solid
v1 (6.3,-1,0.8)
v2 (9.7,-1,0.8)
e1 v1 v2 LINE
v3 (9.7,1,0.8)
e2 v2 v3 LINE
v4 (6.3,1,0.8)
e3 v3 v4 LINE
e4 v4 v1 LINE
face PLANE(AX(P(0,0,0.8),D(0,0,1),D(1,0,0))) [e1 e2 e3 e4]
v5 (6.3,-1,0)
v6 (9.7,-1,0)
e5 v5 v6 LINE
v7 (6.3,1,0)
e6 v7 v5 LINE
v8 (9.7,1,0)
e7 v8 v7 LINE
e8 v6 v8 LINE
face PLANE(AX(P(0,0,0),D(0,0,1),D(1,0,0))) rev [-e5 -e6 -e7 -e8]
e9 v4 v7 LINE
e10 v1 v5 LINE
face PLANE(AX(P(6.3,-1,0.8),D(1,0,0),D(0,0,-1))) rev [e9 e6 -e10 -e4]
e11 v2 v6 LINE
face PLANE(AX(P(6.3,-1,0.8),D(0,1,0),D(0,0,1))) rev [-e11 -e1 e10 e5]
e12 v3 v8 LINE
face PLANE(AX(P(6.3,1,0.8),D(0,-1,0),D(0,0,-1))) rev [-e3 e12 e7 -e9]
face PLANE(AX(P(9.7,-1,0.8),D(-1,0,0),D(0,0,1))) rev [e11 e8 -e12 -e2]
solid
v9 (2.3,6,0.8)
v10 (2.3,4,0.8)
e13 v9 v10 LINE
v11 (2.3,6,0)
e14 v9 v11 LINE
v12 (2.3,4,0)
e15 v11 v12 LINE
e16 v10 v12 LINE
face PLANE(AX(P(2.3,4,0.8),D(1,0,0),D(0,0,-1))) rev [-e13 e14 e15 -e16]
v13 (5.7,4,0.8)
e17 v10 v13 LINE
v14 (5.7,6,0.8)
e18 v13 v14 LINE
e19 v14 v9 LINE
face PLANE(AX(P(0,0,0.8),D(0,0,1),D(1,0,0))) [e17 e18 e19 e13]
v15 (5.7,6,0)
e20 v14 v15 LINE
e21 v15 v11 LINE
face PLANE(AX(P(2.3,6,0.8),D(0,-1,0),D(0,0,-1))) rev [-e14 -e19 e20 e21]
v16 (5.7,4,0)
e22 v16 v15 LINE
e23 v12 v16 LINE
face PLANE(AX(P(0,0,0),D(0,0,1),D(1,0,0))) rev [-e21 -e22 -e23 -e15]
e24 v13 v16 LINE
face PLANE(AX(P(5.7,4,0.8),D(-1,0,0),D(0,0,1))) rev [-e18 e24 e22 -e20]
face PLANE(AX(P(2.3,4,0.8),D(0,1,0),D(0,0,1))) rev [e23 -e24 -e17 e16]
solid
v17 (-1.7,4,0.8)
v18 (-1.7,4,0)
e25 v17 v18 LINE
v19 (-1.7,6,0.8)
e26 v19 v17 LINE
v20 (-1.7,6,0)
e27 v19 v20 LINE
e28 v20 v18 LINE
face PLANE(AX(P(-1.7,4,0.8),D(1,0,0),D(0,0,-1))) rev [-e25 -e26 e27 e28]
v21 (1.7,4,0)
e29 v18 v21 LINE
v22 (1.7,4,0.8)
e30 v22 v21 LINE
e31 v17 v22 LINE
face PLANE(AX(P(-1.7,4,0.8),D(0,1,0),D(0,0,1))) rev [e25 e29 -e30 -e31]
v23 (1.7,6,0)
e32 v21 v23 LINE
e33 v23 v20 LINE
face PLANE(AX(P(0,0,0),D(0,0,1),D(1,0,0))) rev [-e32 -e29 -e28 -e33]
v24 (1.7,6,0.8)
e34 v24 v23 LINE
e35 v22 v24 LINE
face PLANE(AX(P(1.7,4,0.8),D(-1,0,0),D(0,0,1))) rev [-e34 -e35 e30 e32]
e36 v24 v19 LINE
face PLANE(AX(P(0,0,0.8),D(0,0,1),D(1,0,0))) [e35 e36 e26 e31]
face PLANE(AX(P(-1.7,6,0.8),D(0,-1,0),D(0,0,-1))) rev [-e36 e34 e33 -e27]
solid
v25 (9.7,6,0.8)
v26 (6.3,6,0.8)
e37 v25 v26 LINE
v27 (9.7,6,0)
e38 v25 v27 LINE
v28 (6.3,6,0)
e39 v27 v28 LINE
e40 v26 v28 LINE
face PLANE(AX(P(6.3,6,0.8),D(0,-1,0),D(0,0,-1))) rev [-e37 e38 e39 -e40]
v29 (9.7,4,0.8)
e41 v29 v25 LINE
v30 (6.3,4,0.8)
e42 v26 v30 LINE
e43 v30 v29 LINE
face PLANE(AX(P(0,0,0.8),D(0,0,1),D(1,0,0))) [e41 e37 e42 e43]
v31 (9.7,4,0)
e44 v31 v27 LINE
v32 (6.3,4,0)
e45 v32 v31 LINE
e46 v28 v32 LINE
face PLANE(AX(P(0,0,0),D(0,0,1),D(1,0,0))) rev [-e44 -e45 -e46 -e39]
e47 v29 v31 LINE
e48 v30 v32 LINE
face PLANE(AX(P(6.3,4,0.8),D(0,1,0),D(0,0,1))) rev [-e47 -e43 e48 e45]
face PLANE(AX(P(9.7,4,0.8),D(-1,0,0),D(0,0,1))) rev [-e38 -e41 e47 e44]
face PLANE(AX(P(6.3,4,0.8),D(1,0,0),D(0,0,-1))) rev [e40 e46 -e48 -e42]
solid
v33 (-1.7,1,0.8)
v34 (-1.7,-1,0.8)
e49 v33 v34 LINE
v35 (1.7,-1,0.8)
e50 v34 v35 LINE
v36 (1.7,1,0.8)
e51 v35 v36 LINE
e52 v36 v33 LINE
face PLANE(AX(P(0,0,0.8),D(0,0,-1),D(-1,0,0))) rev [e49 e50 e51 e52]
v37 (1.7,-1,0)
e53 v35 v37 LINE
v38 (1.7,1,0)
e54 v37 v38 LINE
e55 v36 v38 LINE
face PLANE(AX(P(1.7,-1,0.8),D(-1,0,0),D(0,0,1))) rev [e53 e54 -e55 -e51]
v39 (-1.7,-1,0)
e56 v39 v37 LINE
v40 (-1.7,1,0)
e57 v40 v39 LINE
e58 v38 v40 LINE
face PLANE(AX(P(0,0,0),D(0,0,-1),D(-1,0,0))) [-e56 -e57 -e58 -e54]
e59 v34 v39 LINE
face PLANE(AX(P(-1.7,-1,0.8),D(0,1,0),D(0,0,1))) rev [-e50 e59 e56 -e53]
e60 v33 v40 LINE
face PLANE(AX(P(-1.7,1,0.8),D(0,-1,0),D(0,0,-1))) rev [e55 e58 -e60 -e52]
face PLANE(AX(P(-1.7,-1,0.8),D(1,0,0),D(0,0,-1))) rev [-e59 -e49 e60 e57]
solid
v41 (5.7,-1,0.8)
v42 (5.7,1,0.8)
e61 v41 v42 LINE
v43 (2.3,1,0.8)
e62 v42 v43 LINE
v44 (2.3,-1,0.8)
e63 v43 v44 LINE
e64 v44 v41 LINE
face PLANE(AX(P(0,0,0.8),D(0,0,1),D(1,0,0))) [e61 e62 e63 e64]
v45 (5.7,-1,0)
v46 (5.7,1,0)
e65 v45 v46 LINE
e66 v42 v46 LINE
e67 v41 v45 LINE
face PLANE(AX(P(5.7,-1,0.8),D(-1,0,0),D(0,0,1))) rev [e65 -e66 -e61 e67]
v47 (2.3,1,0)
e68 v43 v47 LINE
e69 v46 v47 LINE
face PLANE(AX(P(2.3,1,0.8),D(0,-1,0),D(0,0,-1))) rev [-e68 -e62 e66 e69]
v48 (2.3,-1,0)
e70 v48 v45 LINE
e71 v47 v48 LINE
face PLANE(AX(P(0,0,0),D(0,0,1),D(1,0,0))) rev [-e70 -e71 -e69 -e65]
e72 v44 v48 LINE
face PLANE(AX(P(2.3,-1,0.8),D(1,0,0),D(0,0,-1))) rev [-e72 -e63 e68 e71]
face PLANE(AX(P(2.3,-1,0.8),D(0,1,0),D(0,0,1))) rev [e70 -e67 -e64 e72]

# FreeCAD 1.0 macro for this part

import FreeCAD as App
import Part
import Sketcher
from FreeCAD import Vector
Q = App.Units.Quantity

doc = App.newDocument("Part")
body = doc.addObject("PartDesign::Body", "Body")

# Sketch on XY plane
sketch1 = doc.addObject("Sketcher::SketchObject", "Sketch")
body.addObject(sketch1)
sketch1.AttachmentSupport = (doc.XY_Plane, [""])
sketch1.MapMode = "FlatFace"
sketch1.addGeometry([
    Part.LineSegment(Vector(2.3, 1, 0), Vector(2.3, -1, 0)),
    Part.LineSegment(Vector(2.3, -1, 0), Vector(5.7, -1, 0)),
    Part.LineSegment(Vector(5.7, -1, 0), Vector(5.7, 1, 0)),
    Part.LineSegment(Vector(5.7, 1, 0), Vector(2.3, 1, 0)),
], False)
sketch1.addConstraint([
    Sketcher.Constraint("Coincident", 0, 2, 1, 1),
    Sketcher.Constraint("Coincident", 1, 2, 2, 1),
    Sketcher.Constraint("Coincident", 2, 2, 3, 1),
    Sketcher.Constraint("Coincident", 3, 2, 0, 1),
    Sketcher.Constraint("Vertical", 0),
    Sketcher.Constraint("Horizontal", 1),
    Sketcher.Constraint("Vertical", 2),
    Sketcher.Constraint("Horizontal", 3),
    Sketcher.Constraint("DistanceY", 0, 2, 0, 1, Q("2 mm")),
    Sketcher.Constraint("DistanceX", 1, 1, 1, 2, Q("3.4 mm")),
    Sketcher.Constraint("DistanceY", 0, 2, -1, 1, Q("1 mm")),
    Sketcher.Constraint("DistanceX", -1, 1, 0, 2, Q("2.3 mm")),
])
pad1 = doc.addObject("PartDesign::Pad", "Pad")
body.addObject(pad1)
pad1.Profile = sketch1
pad1.Length = 0.8
body2 = doc.addObject("PartDesign::Body", "Body001")

# Sketch on XY plane
sketch2 = doc.addObject("Sketcher::SketchObject", "Sketch001")
body2.addObject(sketch2)
sketch2.AttachmentSupport = (doc.getObject("XY_Plane001"), [""])
sketch2.MapMode = "FlatFace"
sketch2.addGeometry([
    Part.LineSegment(Vector(-1.7, 1, 0), Vector(-1.7, -1, 0)),
    Part.LineSegment(Vector(-1.7, -1, 0), Vector(1.7, -1, 0)),
    Part.LineSegment(Vector(1.7, -1, 0), Vector(1.7, 1, 0)),
    Part.LineSegment(Vector(1.7, 1, 0), Vector(-1.7, 1, 0)),
], False)
sketch2.addConstraint([
    Sketcher.Constraint("Coincident", 0, 2, 1, 1),
    Sketcher.Constraint("Coincident", 1, 2, 2, 1),
    Sketcher.Constraint("Coincident", 2, 2, 3, 1),
    Sketcher.Constraint("Coincident", 3, 2, 0, 1),
    Sketcher.Constraint("Vertical", 0),
    Sketcher.Constraint("Horizontal", 1),
    Sketcher.Constraint("Vertical", 2),
    Sketcher.Constraint("Horizontal", 3),
    Sketcher.Constraint("Symmetric", 0, 2, 2, 2, -1, 1),
    Sketcher.Constraint("DistanceY", 0, 2, 0, 1, Q("2 mm")),
    Sketcher.Constraint("DistanceX", 1, 1, 1, 2, Q("3.4 mm")),
])
pad2 = doc.addObject("PartDesign::Pad", "Pad001")
body2.addObject(pad2)
pad2.Profile = sketch2
pad2.Length = 0.8
body3 = doc.addObject("PartDesign::Body", "Body002")

# Sketch on XY plane
sketch3 = doc.addObject("Sketcher::SketchObject", "Sketch002")
body3.addObject(sketch3)
sketch3.AttachmentSupport = (doc.getObject("XY_Plane002"), [""])
sketch3.MapMode = "FlatFace"
sketch3.addGeometry([
    Part.LineSegment(Vector(6.3, 1, 0), Vector(6.3, -1, 0)),
    Part.LineSegment(Vector(6.3, -1, 0), Vector(9.7, -1, 0)),
    Part.LineSegment(Vector(9.7, -1, 0), Vector(9.7, 1, 0)),
    Part.LineSegment(Vector(9.7, 1, 0), Vector(6.3, 1, 0)),
], False)
sketch3.addConstraint([
    Sketcher.Constraint("Coincident", 0, 2, 1, 1),
    Sketcher.Constraint("Coincident", 1, 2, 2, 1),
    Sketcher.Constraint("Coincident", 2, 2, 3, 1),
    Sketcher.Constraint("Coincident", 3, 2, 0, 1),
    Sketcher.Constraint("Vertical", 0),
    Sketcher.Constraint("Horizontal", 1),
    Sketcher.Constraint("Vertical", 2),
    Sketcher.Constraint("Horizontal", 3),
    Sketcher.Constraint("DistanceY", 0, 2, 0, 1, Q("2 mm")),
    Sketcher.Constraint("DistanceX", 1, 1, 1, 2, Q("3.4 mm")),
    Sketcher.Constraint("DistanceY", 0, 2, -1, 1, Q("1 mm")),
    Sketcher.Constraint("DistanceX", -1, 1, 0, 2, Q("6.3 mm")),
])
pad3 = doc.addObject("PartDesign::Pad", "Pad002")
body3.addObject(pad3)
pad3.Profile = sketch3
pad3.Length = 0.8
body4 = doc.addObject("PartDesign::Body", "Body003")

# Sketch on XY plane
sketch4 = doc.addObject("Sketcher::SketchObject", "Sketch003")
body4.addObject(sketch4)
sketch4.AttachmentSupport = (doc.getObject("XY_Plane003"), [""])
sketch4.MapMode = "FlatFace"
sketch4.addGeometry([
    Part.LineSegment(Vector(2.3, 6, 0), Vector(2.3, 4, 0)),
    Part.LineSegment(Vector(2.3, 4, 0), Vector(5.7, 4, 0)),
    Part.LineSegment(Vector(5.7, 4, 0), Vector(5.7, 6, 0)),
    Part.LineSegment(Vector(5.7, 6, 0), Vector(2.3, 6, 0)),
], False)
sketch4.addConstraint([
    Sketcher.Constraint("Coincident", 0, 2, 1, 1),
    Sketcher.Constraint("Coincident", 1, 2, 2, 1),
    Sketcher.Constraint("Coincident", 2, 2, 3, 1),
    Sketcher.Constraint("Coincident", 3, 2, 0, 1),
    Sketcher.Constraint("Vertical", 0),
    Sketcher.Constraint("Horizontal", 1),
    Sketcher.Constraint("Vertical", 2),
    Sketcher.Constraint("Horizontal", 3),
    Sketcher.Constraint("DistanceY", 0, 2, 0, 1, Q("2 mm")),
    Sketcher.Constraint("DistanceX", 1, 1, 1, 2, Q("3.4 mm")),
    Sketcher.Constraint("DistanceY", -1, 1, 0, 2, Q("4 mm")),
    Sketcher.Constraint("DistanceX", -1, 1, 0, 2, Q("2.3 mm")),
])
pad4 = doc.addObject("PartDesign::Pad", "Pad003")
body4.addObject(pad4)
pad4.Profile = sketch4
pad4.Length = 0.8
body5 = doc.addObject("PartDesign::Body", "Body004")

# Sketch on XY plane
sketch5 = doc.addObject("Sketcher::SketchObject", "Sketch004")
body5.addObject(sketch5)
sketch5.AttachmentSupport = (doc.getObject("XY_Plane004"), [""])
sketch5.MapMode = "FlatFace"
sketch5.addGeometry([
    Part.LineSegment(Vector(6.3, 6, 0), Vector(6.3, 4, 0)),
    Part.LineSegment(Vector(6.3, 4, 0), Vector(9.7, 4, 0)),
    Part.LineSegment(Vector(9.7, 4, 0), Vector(9.7, 6, 0)),
    Part.LineSegment(Vector(9.7, 6, 0), Vector(6.3, 6, 0)),
], False)
sketch5.addConstraint([
    Sketcher.Constraint("Coincident", 0, 2, 1, 1),
    Sketcher.Constraint("Coincident", 1, 2, 2, 1),
    Sketcher.Constraint("Coincident", 2, 2, 3, 1),
    Sketcher.Constraint("Coincident", 3, 2, 0, 1),
    Sketcher.Constraint("Vertical", 0),
    Sketcher.Constraint("Horizontal", 1),
    Sketcher.Constraint("Vertical", 2),
    Sketcher.Constraint("Horizontal", 3),
    Sketcher.Constraint("DistanceY", 0, 2, 0, 1, Q("2 mm")),
    Sketcher.Constraint("DistanceX", 1, 1, 1, 2, Q("3.4 mm")),
    Sketcher.Constraint("DistanceY", -1, 1, 0, 2, Q("4 mm")),
    Sketcher.Constraint("DistanceX", -1, 1, 0, 2, Q("6.3 mm")),
])
pad5 = doc.addObject("PartDesign::Pad", "Pad004")
body5.addObject(pad5)
pad5.Profile = sketch5
pad5.Length = 0.8
body6 = doc.addObject("PartDesign::Body", "Body005")

# Sketch on XY plane
sketch6 = doc.addObject("Sketcher::SketchObject", "Sketch005")
body6.addObject(sketch6)
sketch6.AttachmentSupport = (doc.getObject("XY_Plane005"), [""])
sketch6.MapMode = "FlatFace"
sketch6.addGeometry([
    Part.LineSegment(Vector(-1.7, 6, 0), Vector(-1.7, 4, 0)),
    Part.LineSegment(Vector(-1.7, 4, 0), Vector(1.7, 4, 0)),
    Part.LineSegment(Vector(1.7, 4, 0), Vector(1.7, 6, 0)),
    Part.LineSegment(Vector(1.7, 6, 0), Vector(-1.7, 6, 0)),
], False)
sketch6.addConstraint([
    Sketcher.Constraint("Coincident", 0, 2, 1, 1),
    Sketcher.Constraint("Coincident", 1, 2, 2, 1),
    Sketcher.Constraint("Coincident", 2, 2, 3, 1),
    Sketcher.Constraint("Coincident", 3, 2, 0, 1),
    Sketcher.Constraint("Vertical", 0),
    Sketcher.Constraint("Horizontal", 1),
    Sketcher.Constraint("Vertical", 2),
    Sketcher.Constraint("Horizontal", 3),
    Sketcher.Constraint("DistanceY", 0, 2, 0, 1, Q("2 mm")),
    Sketcher.Constraint("DistanceX", 1, 1, 1, 2, Q("3.4 mm")),
    Sketcher.Constraint("DistanceY", -1, 1, 0, 2, Q("4 mm")),
    Sketcher.Constraint("DistanceX", 0, 2, -1, 1, Q("1.7 mm")),
])
pad6 = doc.addObject("PartDesign::Pad", "Pad005")
body6.addObject(pad6)
pad6.Profile = sketch6
pad6.Length = 0.8

doc.recompute()
